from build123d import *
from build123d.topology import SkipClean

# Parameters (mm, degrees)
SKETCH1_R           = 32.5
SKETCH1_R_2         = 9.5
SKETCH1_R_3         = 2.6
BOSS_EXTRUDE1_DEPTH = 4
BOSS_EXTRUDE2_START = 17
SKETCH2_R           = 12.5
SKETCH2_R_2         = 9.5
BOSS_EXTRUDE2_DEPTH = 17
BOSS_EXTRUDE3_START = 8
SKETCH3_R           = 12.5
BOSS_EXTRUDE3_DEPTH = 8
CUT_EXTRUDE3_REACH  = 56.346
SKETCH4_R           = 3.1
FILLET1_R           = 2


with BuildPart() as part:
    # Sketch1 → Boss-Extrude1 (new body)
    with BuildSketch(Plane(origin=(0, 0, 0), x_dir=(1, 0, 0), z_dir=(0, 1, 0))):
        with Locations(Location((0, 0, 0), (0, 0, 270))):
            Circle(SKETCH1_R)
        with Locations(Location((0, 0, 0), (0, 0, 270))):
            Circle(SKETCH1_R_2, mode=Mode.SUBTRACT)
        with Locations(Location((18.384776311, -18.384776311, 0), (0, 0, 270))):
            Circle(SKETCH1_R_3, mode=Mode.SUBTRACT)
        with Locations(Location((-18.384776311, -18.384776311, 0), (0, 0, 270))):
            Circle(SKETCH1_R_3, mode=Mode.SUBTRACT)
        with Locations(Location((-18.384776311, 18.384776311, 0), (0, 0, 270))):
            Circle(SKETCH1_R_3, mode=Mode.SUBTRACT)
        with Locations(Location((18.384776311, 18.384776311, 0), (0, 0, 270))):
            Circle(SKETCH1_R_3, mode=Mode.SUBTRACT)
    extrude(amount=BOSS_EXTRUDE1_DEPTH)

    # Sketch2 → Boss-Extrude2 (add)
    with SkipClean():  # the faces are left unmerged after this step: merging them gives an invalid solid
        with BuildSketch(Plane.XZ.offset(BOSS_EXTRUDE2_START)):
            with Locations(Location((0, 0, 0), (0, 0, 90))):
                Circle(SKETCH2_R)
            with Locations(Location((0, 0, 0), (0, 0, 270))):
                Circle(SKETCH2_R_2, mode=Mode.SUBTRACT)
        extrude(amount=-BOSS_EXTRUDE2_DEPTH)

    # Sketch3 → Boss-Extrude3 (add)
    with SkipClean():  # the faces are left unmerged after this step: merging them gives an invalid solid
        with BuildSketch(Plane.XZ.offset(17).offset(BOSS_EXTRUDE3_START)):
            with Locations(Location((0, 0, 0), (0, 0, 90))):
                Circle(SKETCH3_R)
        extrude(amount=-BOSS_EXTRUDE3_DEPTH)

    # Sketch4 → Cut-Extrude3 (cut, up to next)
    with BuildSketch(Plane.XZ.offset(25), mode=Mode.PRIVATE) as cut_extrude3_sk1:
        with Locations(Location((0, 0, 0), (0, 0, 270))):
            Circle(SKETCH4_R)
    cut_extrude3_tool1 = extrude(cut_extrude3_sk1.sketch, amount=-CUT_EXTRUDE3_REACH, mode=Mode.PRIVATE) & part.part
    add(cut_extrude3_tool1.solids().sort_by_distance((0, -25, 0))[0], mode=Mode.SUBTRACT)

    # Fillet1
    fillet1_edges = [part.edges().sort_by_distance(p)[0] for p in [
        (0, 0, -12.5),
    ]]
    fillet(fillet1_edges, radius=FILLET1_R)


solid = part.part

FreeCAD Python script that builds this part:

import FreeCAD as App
import Part
import Sketcher

V = App.Vector
Q = App.Units.Quantity


def edges_at(feature, points):
    """Names of the edges that pass closest to the given points."""
    edges = feature.Shape.Edges
    near = lambda p: min(range(len(edges)), key=lambda i: edges[i].distToShape(Part.Vertex(*p))[0])
    return sorted({f"Edge{near(p) + 1}" for p in points})

doc = App.newDocument("Part")
body = doc.addObject("PartDesign::Body", "Body")

# Sketch on XZ plane
sketch1 = body.newObject("Sketcher::SketchObject", "Sketch")
sketch1.AttachmentSupport = (doc.getObject("XZ_Plane"), [""])
sketch1.MapMode = "FlatFace"
sketch1.addGeometry(Part.Circle(V(0, 0, 0), V(0, 0, 1), 32.5), False)
sketch1.addGeometry(Part.Circle(V(-18.4, -18.4, 0), V(0, 0, 1), 2.6), False)
sketch1.addGeometry(Part.Circle(V(-18.4, 18.4, 0), V(0, 0, 1), 2.6), False)
sketch1.addGeometry(Part.Circle(V(0, 0, 0), V(0, 0, 1), 9.5), False)
sketch1.addGeometry(Part.Circle(V(18.4, -18.4, 0), V(0, 0, 1), 2.6), False)
sketch1.addGeometry(Part.Circle(V(18.4, 18.4, 0), V(0, 0, 1), 2.6), False)
sketch1.addConstraint(Sketcher.Constraint("Coincident", 0, 3, -1, 1))
sketch1.addConstraint(Sketcher.Constraint("Coincident", 3, 3, -1, 1))
sketch1.addConstraint(Sketcher.Constraint("Equal", 1, 2))
sketch1.addConstraint(Sketcher.Constraint("Equal", 2, 4))
sketch1.addConstraint(Sketcher.Constraint("Equal", 4, 5))
sketch1.addConstraint(Sketcher.Constraint("Symmetric", 2, 3, 4, 3, -1, 1))
sketch1.addConstraint(Sketcher.Constraint("Symmetric", 1, 3, 5, 3, -1, 1))
sketch1.addConstraint(Sketcher.Constraint("Symmetric", 1, 3, 4, 3, -2))
sketch1.addConstraint(Sketcher.Constraint("Diameter", 0, Q("65 mm")))
sketch1.addConstraint(Sketcher.Constraint("Diameter", 3, Q("19 mm")))
sketch1.addConstraint(Sketcher.Constraint("Diameter", 1, Q("5.2 mm")))
sketch1.addConstraint(Sketcher.Constraint("DistanceX", 1, 3, -1, 1, Q("18.384776 mm")))
sketch1.addConstraint(Sketcher.Constraint("DistanceY", 1, 3, -1, 1, Q("18.384776 mm")))
pad1 = body.newObject("PartDesign::Pad", "Pad")
pad1.Profile = sketch1
pad1.Length = 4
pad1.Reversed = True

# Sketch on XZ plane
sketch2 = body.newObject("Sketcher::SketchObject", "Sketch001")
sketch2.AttachmentSupport = (doc.getObject("XZ_Plane"), [""])
sketch2.MapMode = "FlatFace"
sketch2.AttachmentOffset = App.Placement(V(0, 0, 17), App.Rotation())
sketch2.addGeometry(Part.Circle(V(0, 0, 0), V(0, 0, 1), 12), False)
sketch2.addGeometry(Part.Circle(V(0, 0, 0), V(0, 0, 1), 10), False)
sketch2.addConstraint(Sketcher.Constraint("Coincident", 0, 3, -1, 1))
sketch2.addConstraint(Sketcher.Constraint("Coincident", 1, 3, -1, 1))
sketch2.addConstraint(Sketcher.Constraint("Diameter", 0, Q("25 mm")))
sketch2.addConstraint(Sketcher.Constraint("Diameter", 1, Q("19 mm")))
pad2 = body.newObject("PartDesign::Pad", "Pad001")
pad2.Profile = sketch2
pad2.Length = 17
pad2.Reversed = True

# Sketch on XZ plane
sketch3 = body.newObject("Sketcher::SketchObject", "Sketch002")
sketch3.AttachmentSupport = (doc.getObject("XZ_Plane"), [""])
sketch3.MapMode = "FlatFace"
sketch3.AttachmentOffset = App.Placement(V(0, 0, 25), App.Rotation())
sketch3.addGeometry(Part.Circle(V(0, 0, 0), V(0, 0, 1), 12), False)
sketch3.addConstraint(Sketcher.Constraint("Coincident", 0, 3, -1, 1))
sketch3.addConstraint(Sketcher.Constraint("Diameter", 0, Q("25 mm")))
pad3 = body.newObject("PartDesign::Pad", "Pad002")
pad3.Profile = sketch3
pad3.Length = 8
pad3.Reversed = True

# Sketch on XZ plane
sketch4 = body.newObject("Sketcher::SketchObject", "Sketch003")
sketch4.AttachmentSupport = (doc.getObject("XZ_Plane"), [""])
sketch4.MapMode = "FlatFace"
sketch4.AttachmentOffset = App.Placement(V(0, 0, 25), App.Rotation())
sketch4.addGeometry(Part.Circle(V(0, 0, 0), V(0, 0, 1), 3.1), False)
sketch4.addConstraint(Sketcher.Constraint("Coincident", 0, 3, -1, 1))
sketch4.addConstraint(Sketcher.Constraint("Diameter", 0, Q("6.2 mm")))
pocket1 = body.newObject("PartDesign::Pocket", "Pocket")
pocket1.Profile = sketch4
pocket1.Type = "UpToFirst"
doc.recompute()

fillet = body.newObject("PartDesign::Fillet", "Fillet")
fillet.Base = (pocket1, edges_at(pocket1, [(0, 0, -12.5)]))
fillet.Radius = 2

doc.recompute()
